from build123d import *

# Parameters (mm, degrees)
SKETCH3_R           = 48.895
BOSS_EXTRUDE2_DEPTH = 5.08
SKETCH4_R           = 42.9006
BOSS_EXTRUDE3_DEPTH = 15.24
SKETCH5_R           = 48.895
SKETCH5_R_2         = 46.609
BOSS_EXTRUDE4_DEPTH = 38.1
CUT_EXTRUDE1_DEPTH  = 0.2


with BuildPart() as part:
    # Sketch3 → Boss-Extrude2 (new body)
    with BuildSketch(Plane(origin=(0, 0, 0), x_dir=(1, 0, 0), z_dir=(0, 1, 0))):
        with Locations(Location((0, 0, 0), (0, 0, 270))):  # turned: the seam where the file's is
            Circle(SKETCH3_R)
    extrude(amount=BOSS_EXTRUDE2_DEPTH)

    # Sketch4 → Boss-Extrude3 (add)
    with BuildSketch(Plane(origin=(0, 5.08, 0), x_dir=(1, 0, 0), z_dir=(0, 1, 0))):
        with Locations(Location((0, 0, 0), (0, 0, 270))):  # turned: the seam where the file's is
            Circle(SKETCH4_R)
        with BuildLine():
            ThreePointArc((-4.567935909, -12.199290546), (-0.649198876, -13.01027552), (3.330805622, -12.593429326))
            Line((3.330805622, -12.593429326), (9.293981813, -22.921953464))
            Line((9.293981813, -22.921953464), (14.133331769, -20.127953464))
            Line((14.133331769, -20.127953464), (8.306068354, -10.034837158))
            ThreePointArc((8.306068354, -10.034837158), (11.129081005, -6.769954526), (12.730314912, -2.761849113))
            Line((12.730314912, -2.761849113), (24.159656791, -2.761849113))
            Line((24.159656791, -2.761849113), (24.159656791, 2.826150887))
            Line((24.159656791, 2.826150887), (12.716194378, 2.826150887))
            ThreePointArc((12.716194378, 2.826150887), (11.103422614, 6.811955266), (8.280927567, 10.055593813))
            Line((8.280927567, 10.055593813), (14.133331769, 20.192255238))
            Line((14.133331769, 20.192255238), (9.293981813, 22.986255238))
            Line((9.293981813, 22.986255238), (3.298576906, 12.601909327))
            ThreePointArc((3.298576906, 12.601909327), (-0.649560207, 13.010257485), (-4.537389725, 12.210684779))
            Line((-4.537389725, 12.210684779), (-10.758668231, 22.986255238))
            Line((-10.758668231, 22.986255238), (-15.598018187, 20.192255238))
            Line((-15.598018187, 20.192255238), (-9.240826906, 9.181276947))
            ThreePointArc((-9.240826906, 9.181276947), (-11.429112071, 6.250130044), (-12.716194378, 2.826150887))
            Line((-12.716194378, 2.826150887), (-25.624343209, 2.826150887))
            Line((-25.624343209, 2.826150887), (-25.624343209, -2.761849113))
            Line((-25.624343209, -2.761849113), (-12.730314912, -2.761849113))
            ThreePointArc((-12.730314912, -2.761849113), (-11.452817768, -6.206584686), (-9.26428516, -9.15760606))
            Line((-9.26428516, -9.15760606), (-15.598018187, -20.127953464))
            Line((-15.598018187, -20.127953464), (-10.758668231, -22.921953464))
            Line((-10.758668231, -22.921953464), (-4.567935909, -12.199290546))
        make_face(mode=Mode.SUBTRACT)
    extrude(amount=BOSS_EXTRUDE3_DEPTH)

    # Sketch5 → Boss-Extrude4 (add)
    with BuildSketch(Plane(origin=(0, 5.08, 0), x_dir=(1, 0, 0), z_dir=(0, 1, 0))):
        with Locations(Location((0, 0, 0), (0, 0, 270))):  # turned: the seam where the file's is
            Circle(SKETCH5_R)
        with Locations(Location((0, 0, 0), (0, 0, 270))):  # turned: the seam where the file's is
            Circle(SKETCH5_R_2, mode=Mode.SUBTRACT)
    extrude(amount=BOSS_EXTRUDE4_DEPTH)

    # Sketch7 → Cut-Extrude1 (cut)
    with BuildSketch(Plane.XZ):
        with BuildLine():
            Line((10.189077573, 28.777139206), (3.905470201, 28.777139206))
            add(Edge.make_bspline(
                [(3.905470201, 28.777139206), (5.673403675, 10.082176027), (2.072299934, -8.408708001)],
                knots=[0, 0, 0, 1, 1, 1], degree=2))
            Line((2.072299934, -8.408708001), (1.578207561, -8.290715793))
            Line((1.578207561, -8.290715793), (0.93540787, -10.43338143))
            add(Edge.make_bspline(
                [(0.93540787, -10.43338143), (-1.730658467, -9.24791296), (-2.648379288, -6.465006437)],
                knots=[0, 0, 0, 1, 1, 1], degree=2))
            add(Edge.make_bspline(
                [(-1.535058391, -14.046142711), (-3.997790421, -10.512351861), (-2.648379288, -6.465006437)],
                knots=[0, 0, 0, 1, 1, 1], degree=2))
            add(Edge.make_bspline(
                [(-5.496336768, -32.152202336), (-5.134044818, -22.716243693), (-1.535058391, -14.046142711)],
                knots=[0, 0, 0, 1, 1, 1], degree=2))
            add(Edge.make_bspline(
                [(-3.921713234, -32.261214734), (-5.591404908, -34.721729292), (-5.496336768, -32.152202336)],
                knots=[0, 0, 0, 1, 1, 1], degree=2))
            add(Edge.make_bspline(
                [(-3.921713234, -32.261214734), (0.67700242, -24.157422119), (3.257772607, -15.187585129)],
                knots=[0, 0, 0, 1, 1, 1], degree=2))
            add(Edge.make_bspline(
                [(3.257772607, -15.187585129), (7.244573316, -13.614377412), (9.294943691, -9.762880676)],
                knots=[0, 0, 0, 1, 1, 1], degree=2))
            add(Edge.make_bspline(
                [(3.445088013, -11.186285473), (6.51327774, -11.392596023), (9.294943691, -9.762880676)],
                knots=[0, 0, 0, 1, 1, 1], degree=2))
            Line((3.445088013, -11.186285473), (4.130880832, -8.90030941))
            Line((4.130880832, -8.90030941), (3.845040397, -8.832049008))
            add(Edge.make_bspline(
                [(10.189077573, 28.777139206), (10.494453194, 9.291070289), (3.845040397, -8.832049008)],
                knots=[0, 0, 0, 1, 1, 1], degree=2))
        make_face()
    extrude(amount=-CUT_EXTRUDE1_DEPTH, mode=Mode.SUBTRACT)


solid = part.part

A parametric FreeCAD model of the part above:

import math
import FreeCAD as App
import Part
import Sketcher

V = App.Vector
Q = App.Units.Quantity

doc = App.newDocument("Part")
body = doc.addObject("PartDesign::Body", "Body")

# Sketch on XZ plane
sketch1 = body.newObject("Sketcher::SketchObject", "Sketch")
sketch1.AttachmentSupport = (doc.getObject("XZ_Plane"), [""])
sketch1.MapMode = "FlatFace"
sketch1.addGeometry(Part.Circle(V(0, 0, 0), V(0, 0, 1), 49), False)
sketch1.addConstraint(Sketcher.Constraint("Coincident", 0, 3, -1, 1))
sketch1.addConstraint(Sketcher.Constraint("Diameter", 0, Q("3.85 in")))
pad1 = body.newObject("PartDesign::Pad", "Pad")
pad1.Profile = sketch1
pad1.Length = Q("0.2 in")
pad1.Reversed = True

# Sketch on XZ plane
sketch2 = body.newObject("Sketcher::SketchObject", "Sketch001")
sketch2.AttachmentSupport = (doc.getObject("XZ_Plane"), [""])
sketch2.MapMode = "FlatFace"
sketch2.AttachmentOffset = App.Placement(V(0, 0, -0.2 * 25.4), App.Rotation())
sketch2.addGeometry(Part.Circle(V(0, 0, 0), V(0, 0, 1), 43), False)
sketch2.addGeometry(Part.ArcOfCircle(Part.Circle(V(0, 0, 0), V(0, 0, 1), 13), math.radians(75), math.radians(111)), False)
sketch2.addGeometry(Part.LineSegment(V(-5, 12, 0), V(-11, 23, 0)), False)
sketch2.addGeometry(Part.LineSegment(V(-11, 23, 0), V(-16, 20, 0)), False)
sketch2.addGeometry(Part.LineSegment(V(-16, 20, 0), V(-9, 9, 0)), False)
sketch2.addGeometry(Part.ArcOfCircle(Part.Circle(V(0, 0, 0), V(0, 0, 1), 13), math.radians(135), math.radians(168)), False)
sketch2.addGeometry(Part.LineSegment(V(-13, 3, 0), V(-26, 3, 0)), False)
sketch2.addGeometry(Part.LineSegment(V(-26, 3, 0), V(-26, -3, 0)), False)
sketch2.addGeometry(Part.LineSegment(V(-26, -3, 0), V(-13, -3, 0)), False)
sketch2.addGeometry(Part.ArcOfCircle(Part.Circle(V(0, 0, 0), V(0, 0, 1), 13), math.radians(-167), math.radians(-135)), False)
sketch2.addGeometry(Part.LineSegment(V(-9, -9, 0), V(-16, -20, 0)), False)
sketch2.addGeometry(Part.LineSegment(V(-16, -20, 0), V(-11, -23, 0)), False)
sketch2.addGeometry(Part.LineSegment(V(-11, -23, 0), V(-5, -12, 0)), False)
sketch2.addGeometry(Part.ArcOfCircle(Part.Circle(V(0, 0, 0), V(0, 0, 1), 13), math.radians(-110), math.radians(-75)), False)
sketch2.addGeometry(Part.LineSegment(V(3, -13, 0), V(9, -23, 0)), False)
sketch2.addGeometry(Part.LineSegment(V(9, -23, 0), V(14, -20, 0)), False)
sketch2.addGeometry(Part.LineSegment(V(14, -20, 0), V(8, -10, 0)), False)
sketch2.addGeometry(Part.ArcOfCircle(Part.Circle(V(0, 0, 0), V(0, 0, 1), 13), math.radians(-51), math.radians(-13)), False)
sketch2.addGeometry(Part.LineSegment(V(13, -3, 0), V(24, -3, 0)), False)
sketch2.addGeometry(Part.LineSegment(V(24, -3, 0), V(24, 3, 0)), False)
sketch2.addGeometry(Part.LineSegment(V(24, 3, 0), V(13, 3, 0)), False)
sketch2.addGeometry(Part.ArcOfCircle(Part.Circle(V(0, 0, 0), V(0, 0, 1), 13), math.radians(12), math.radians(50)), False)
sketch2.addGeometry(Part.LineSegment(V(8, 10, 0), V(14, 20, 0)), False)
sketch2.addGeometry(Part.LineSegment(V(14, 20, 0), V(9, 23, 0)), False)
sketch2.addGeometry(Part.LineSegment(V(9, 23, 0), V(3, 13, 0)), False)
sketch2.addConstraint(Sketcher.Constraint("Coincident", 1, 2, 2, 1))
sketch2.addConstraint(Sketcher.Constraint("Coincident", 2, 2, 3, 1))
sketch2.addConstraint(Sketcher.Constraint("Coincident", 3, 2, 4, 1))
sketch2.addConstraint(Sketcher.Constraint("Coincident", 4, 2, 5, 1))
sketch2.addConstraint(Sketcher.Constraint("Coincident", 5, 2, 6, 1))
sketch2.addConstraint(Sketcher.Constraint("Coincident", 6, 2, 7, 1))
sketch2.addConstraint(Sketcher.Constraint("Coincident", 7, 2, 8, 1))
sketch2.addConstraint(Sketcher.Constraint("Coincident", 8, 2, 9, 1))
sketch2.addConstraint(Sketcher.Constraint("Coincident", 9, 2, 10, 1))
sketch2.addConstraint(Sketcher.Constraint("Coincident", 10, 2, 11, 1))
sketch2.addConstraint(Sketcher.Constraint("Coincident", 11, 2, 12, 1))
sketch2.addConstraint(Sketcher.Constraint("Coincident", 12, 2, 13, 1))
sketch2.addConstraint(Sketcher.Constraint("Coincident", 13, 2, 14, 1))
sketch2.addConstraint(Sketcher.Constraint("Coincident", 14, 2, 15, 1))
sketch2.addConstraint(Sketcher.Constraint("Coincident", 15, 2, 16, 1))
sketch2.addConstraint(Sketcher.Constraint("Coincident", 16, 2, 17, 1))
sketch2.addConstraint(Sketcher.Constraint("Coincident", 17, 2, 18, 1))
sketch2.addConstraint(Sketcher.Constraint("Coincident", 18, 2, 19, 1))
sketch2.addConstraint(Sketcher.Constraint("Coincident", 19, 2, 20, 1))
sketch2.addConstraint(Sketcher.Constraint("Coincident", 20, 2, 21, 1))
sketch2.addConstraint(Sketcher.Constraint("Coincident", 21, 2, 22, 1))
sketch2.addConstraint(Sketcher.Constraint("Coincident", 22, 2, 23, 1))
sketch2.addConstraint(Sketcher.Constraint("Coincident", 23, 2, 24, 1))
sketch2.addConstraint(Sketcher.Constraint("Coincident", 24, 2, 1, 1))
sketch2.addConstraint(Sketcher.Constraint("Horizontal", 6))
sketch2.addConstraint(Sketcher.Constraint("Vertical", 7))
sketch2.addConstraint(Sketcher.Constraint("Horizontal", 8))
sketch2.addConstraint(Sketcher.Constraint("Horizontal", 18))
sketch2.addConstraint(Sketcher.Constraint("Vertical", 19))
sketch2.addConstraint(Sketcher.Constraint("Horizontal", 20))
sketch2.addConstraint(Sketcher.Constraint("Coincident", 0, 3, -1, 1))
sketch2.addConstraint(Sketcher.Constraint("Coincident", 1, 3, -1, 1))
sketch2.addConstraint(Sketcher.Constraint("Coincident", 5, 3, -1, 1))
sketch2.addConstraint(Sketcher.Constraint("Coincident", 9, 3, -1, 1))
sketch2.addConstraint(Sketcher.Constraint("Coincident", 13, 3, -1, 1))
sketch2.addConstraint(Sketcher.Constraint("Coincident", 17, 3, -1, 1))
sketch2.addConstraint(Sketcher.Constraint("Coincident", 21, 3, -1, 1))
sketch2.addConstraint(Sketcher.Constraint("Equal", 1, 5))
sketch2.addConstraint(Sketcher.Constraint("Equal", 5, 9))
sketch2.addConstraint(Sketcher.Constraint("Equal", 9, 13))
sketch2.addConstraint(Sketcher.Constraint("Equal", 13, 17))
sketch2.addConstraint(Sketcher.Constraint("Equal", 17, 21))
sketch2.addConstraint(Sketcher.Constraint("Perpendicular", 2, 3))
sketch2.addConstraint(Sketcher.Constraint("Perpendicular", 3, 4))
sketch2.addConstraint(Sketcher.Constraint("Perpendicular", 10, 11))
sketch2.addConstraint(Sketcher.Constraint("Perpendicular", 11, 12))
sketch2.addConstraint(Sketcher.Constraint("Parallel", 4, 14))
sketch2.addConstraint(Sketcher.Constraint("Perpendicular", 14, 15))
sketch2.addConstraint(Sketcher.Constraint("Perpendicular", 15, 16))
sketch2.addConstraint(Sketcher.Constraint("Parallel", 12, 22))
sketch2.addConstraint(Sketcher.Constraint("Perpendicular", 22, 23))
sketch2.addConstraint(Sketcher.Constraint("Perpendicular", 23, 24))
sketch2.addConstraint(Sketcher.Constraint("Horizontal", 11, 2, 14, 2))
sketch2.addConstraint(Sketcher.Constraint("Horizontal", 10, 2, 15, 2))
sketch2.addConstraint(Sketcher.Constraint("Horizontal", 8, 2, 17, 2))
sketch2.addConstraint(Sketcher.Constraint("Horizontal", 6, 2, 19, 2))
sketch2.addConstraint(Sketcher.Constraint("Horizontal", 3, 2, 22, 2))
sketch2.addConstraint(Sketcher.Constraint("Horizontal", 2, 2, 23, 2))
sketch2.addConstraint(Sketcher.Constraint("Vertical", 3, 2, 10, 2))
sketch2.addConstraint(Sketcher.Constraint("Vertical", 2, 2, 11, 2))
sketch2.addConstraint(Sketcher.Constraint("Vertical", 15, 2, 22, 2))
sketch2.addConstraint(Sketcher.Constraint("Vertical", 14, 2, 23, 2))
sketch2.addConstraint(Sketcher.Constraint("Diameter", 0, Q("3.378 in")))
sketch2.addConstraint(Sketcher.Constraint("Angle", 2, Q("120 deg")))
sketch2.addConstraint(Sketcher.Constraint("DistanceY", 7, 2, 7, 1, Q("0.22 in")))
sketch2.addConstraint(Sketcher.Constraint("Distance", 3, Q("0.22 in")))
sketch2.addConstraint(Sketcher.Constraint("DistanceX", 8, 2, 12, 2, Q("0.3220002 in")))
sketch2.addConstraint(Sketcher.Constraint("Radius", 1, Q("13.026463 mm")))
sketch2.addConstraint(Sketcher.Constraint("DistanceX", 6, 2, 6, 1, Q("12.894028 mm")))
sketch2.addConstraint(Sketcher.Constraint("DistanceX", 8, 1, 8, 2, Q("12.908149 mm")))
sketch2.addConstraint(Sketcher.Constraint("DistanceX", 20, 2, 20, 1, Q("11.429342 mm")))
sketch2.addConstraint(Sketcher.Constraint("Distance", 14, Q("11.99081 mm")))
sketch2.addConstraint(Sketcher.Constraint("Distance", 16, Q("11.704808 mm")))
sketch2.addConstraint(Sketcher.Constraint("DistanceY", -1, 1, 1, 2, Q("12.199291 mm")))
pad2 = body.newObject("PartDesign::Pad", "Pad001")
pad2.Profile = sketch2
pad2.Length = Q("0.6 in")
pad2.Reversed = True

# Sketch on XZ plane
sketch3 = body.newObject("Sketcher::SketchObject", "Sketch002")
sketch3.AttachmentSupport = (doc.getObject("XZ_Plane"), [""])
sketch3.MapMode = "FlatFace"
sketch3.AttachmentOffset = App.Placement(V(0, 0, -0.2 * 25.4), App.Rotation())
sketch3.addGeometry(Part.Circle(V(0, 0, 0), V(0, 0, 1), 49), False)
sketch3.addGeometry(Part.Circle(V(0, 0, 0), V(0, 0, 1), 47), False)
sketch3.addConstraint(Sketcher.Constraint("Coincident", 0, 3, -1, 1))
sketch3.addConstraint(Sketcher.Constraint("Coincident", 1, 3, -1, 1))
sketch3.addConstraint(Sketcher.Constraint("Diameter", 0, Q("3.85 in")))
sketch3.addConstraint(Sketcher.Constraint("Diameter", 1, Q("3.67 in")))
pad3 = body.newObject("PartDesign::Pad", "Pad002")
pad3.Profile = sketch3
pad3.Length = Q("1.5 in")
pad3.Reversed = True

# Sketch on XZ plane
sketch4 = body.newObject("Sketcher::SketchObject", "Sketch003")
sketch4.AttachmentSupport = (doc.getObject("XZ_Plane"), [""])
sketch4.MapMode = "FlatFace"
sketch4.addGeometry(Part.LineSegment(V(10.189078, 28.777139, 0), V(3.90547, 28.777139, 0)), False)
sketch4.addGeometry(Part.BSplineCurve([V(3.90547, 28.777139, 0), V(5.673404, 10.082176, 0), V(2.0723, -8.408708, 0)], [3, 3], [0, 1], False, 2, [1, 1, 1], False), False)
sketch4.addGeometry(Part.LineSegment(V(2.0723, -8.408708, 0), V(1.578208, -8.290716, 0)), False)
sketch4.addGeometry(Part.LineSegment(V(1.578208, -8.290716, 0), V(0.935408, -10.433381, 0)), False)
sketch4.addGeometry(Part.BSplineCurve([V(0.935408, -10.433381, 0), V(-1.730658, -9.247913, 0), V(-2.648379, -6.465006, 0)], [3, 3], [0, 1], False, 2, [1, 1, 1], False), False)
sketch4.addGeometry(Part.BSplineCurve([V(-1.535058, -14.046143, 0), V(-3.99779, -10.512352, 0), V(-2.648379, -6.465006, 0)], [3, 3], [0, 1], False, 2, [1, 1, 1], False), False)
sketch4.addGeometry(Part.BSplineCurve([V(-5.496337, -32.152202, 0), V(-5.134045, -22.716244, 0), V(-1.535058, -14.046143, 0)], [3, 3], [0, 1], False, 2, [1, 1, 1], False), False)
sketch4.addGeometry(Part.BSplineCurve([V(-3.921713, -32.261215, 0), V(-5.591405, -34.721729, 0), V(-5.496337, -32.152202, 0)], [3, 3], [0, 1], False, 2, [1, 1, 1], False), False)
sketch4.addGeometry(Part.BSplineCurve([V(-3.921713, -32.261215, 0), V(0.677002, -24.157422, 0), V(3.257773, -15.187585, 0)], [3, 3], [0, 1], False, 2, [1, 1, 1], False), False)
sketch4.addGeometry(Part.BSplineCurve([V(3.257773, -15.187585, 0), V(7.244573, -13.614377, 0), V(9.294944, -9.762881, 0)], [3, 3], [0, 1], False, 2, [1, 1, 1], False), False)
sketch4.addGeometry(Part.BSplineCurve([V(3.445088, -11.186285, 0), V(6.513278, -11.392596, 0), V(9.294944, -9.762881, 0)], [3, 3], [0, 1], False, 2, [1, 1, 1], False), False)
sketch4.addGeometry(Part.LineSegment(V(3.445088, -11.186285, 0), V(4.130881, -8.900309, 0)), False)
sketch4.addGeometry(Part.LineSegment(V(4.130881, -8.900309, 0), V(3.84504, -8.832049, 0)), False)
sketch4.addGeometry(Part.BSplineCurve([V(10.189078, 28.777139, 0), V(10.494453, 9.29107, 0), V(3.84504, -8.832049, 0)], [3, 3], [0, 1], False, 2, [1, 1, 1], False), False)
sketch4.addConstraint(Sketcher.Constraint("Block", 1))
sketch4.addConstraint(Sketcher.Constraint("Block", 4))
sketch4.addConstraint(Sketcher.Constraint("Block", 5))
sketch4.addConstraint(Sketcher.Constraint("Block", 6))
sketch4.addConstraint(Sketcher.Constraint("Block", 7))
sketch4.addConstraint(Sketcher.Constraint("Block", 8))
sketch4.addConstraint(Sketcher.Constraint("Block", 9))
sketch4.addConstraint(Sketcher.Constraint("Block", 10))
sketch4.addConstraint(Sketcher.Constraint("Block", 13))
sketch4.addConstraint(Sketcher.Constraint("Coincident", 0, 2, 1, 1))
sketch4.addConstraint(Sketcher.Constraint("Coincident", 1, 2, 2, 1))
sketch4.addConstraint(Sketcher.Constraint("Coincident", 2, 2, 3, 1))
sketch4.addConstraint(Sketcher.Constraint("Coincident", 3, 2, 4, 1))
sketch4.addConstraint(Sketcher.Constraint("Coincident", 10, 1, 11, 1))
sketch4.addConstraint(Sketcher.Constraint("Coincident", 11, 2, 12, 1))
sketch4.addConstraint(Sketcher.Constraint("Coincident", 12, 2, 13, 2))
sketch4.addConstraint(Sketcher.Constraint("Coincident", 13, 1, 0, 1))
sketch4.addConstraint(Sketcher.Constraint("DistanceX", 3, 2, 2, 2, Q("0.6428 mm")))
sketch4.addConstraint(Sketcher.Constraint("Distance", 3, Q("2.237009 mm")))
sketch4.addConstraint(Sketcher.Constraint("Distance", 11, Q("2.386629 mm")))
sketch4.addConstraint(Sketcher.Constraint("DistanceX", -1, 1, 11, 2, Q("4.130881 mm")))
pocket1 = body.newObject("PartDesign::Pocket", "Pocket")
pocket1.Profile = sketch4
pocket1.Length = 0.2

doc.recompute()
